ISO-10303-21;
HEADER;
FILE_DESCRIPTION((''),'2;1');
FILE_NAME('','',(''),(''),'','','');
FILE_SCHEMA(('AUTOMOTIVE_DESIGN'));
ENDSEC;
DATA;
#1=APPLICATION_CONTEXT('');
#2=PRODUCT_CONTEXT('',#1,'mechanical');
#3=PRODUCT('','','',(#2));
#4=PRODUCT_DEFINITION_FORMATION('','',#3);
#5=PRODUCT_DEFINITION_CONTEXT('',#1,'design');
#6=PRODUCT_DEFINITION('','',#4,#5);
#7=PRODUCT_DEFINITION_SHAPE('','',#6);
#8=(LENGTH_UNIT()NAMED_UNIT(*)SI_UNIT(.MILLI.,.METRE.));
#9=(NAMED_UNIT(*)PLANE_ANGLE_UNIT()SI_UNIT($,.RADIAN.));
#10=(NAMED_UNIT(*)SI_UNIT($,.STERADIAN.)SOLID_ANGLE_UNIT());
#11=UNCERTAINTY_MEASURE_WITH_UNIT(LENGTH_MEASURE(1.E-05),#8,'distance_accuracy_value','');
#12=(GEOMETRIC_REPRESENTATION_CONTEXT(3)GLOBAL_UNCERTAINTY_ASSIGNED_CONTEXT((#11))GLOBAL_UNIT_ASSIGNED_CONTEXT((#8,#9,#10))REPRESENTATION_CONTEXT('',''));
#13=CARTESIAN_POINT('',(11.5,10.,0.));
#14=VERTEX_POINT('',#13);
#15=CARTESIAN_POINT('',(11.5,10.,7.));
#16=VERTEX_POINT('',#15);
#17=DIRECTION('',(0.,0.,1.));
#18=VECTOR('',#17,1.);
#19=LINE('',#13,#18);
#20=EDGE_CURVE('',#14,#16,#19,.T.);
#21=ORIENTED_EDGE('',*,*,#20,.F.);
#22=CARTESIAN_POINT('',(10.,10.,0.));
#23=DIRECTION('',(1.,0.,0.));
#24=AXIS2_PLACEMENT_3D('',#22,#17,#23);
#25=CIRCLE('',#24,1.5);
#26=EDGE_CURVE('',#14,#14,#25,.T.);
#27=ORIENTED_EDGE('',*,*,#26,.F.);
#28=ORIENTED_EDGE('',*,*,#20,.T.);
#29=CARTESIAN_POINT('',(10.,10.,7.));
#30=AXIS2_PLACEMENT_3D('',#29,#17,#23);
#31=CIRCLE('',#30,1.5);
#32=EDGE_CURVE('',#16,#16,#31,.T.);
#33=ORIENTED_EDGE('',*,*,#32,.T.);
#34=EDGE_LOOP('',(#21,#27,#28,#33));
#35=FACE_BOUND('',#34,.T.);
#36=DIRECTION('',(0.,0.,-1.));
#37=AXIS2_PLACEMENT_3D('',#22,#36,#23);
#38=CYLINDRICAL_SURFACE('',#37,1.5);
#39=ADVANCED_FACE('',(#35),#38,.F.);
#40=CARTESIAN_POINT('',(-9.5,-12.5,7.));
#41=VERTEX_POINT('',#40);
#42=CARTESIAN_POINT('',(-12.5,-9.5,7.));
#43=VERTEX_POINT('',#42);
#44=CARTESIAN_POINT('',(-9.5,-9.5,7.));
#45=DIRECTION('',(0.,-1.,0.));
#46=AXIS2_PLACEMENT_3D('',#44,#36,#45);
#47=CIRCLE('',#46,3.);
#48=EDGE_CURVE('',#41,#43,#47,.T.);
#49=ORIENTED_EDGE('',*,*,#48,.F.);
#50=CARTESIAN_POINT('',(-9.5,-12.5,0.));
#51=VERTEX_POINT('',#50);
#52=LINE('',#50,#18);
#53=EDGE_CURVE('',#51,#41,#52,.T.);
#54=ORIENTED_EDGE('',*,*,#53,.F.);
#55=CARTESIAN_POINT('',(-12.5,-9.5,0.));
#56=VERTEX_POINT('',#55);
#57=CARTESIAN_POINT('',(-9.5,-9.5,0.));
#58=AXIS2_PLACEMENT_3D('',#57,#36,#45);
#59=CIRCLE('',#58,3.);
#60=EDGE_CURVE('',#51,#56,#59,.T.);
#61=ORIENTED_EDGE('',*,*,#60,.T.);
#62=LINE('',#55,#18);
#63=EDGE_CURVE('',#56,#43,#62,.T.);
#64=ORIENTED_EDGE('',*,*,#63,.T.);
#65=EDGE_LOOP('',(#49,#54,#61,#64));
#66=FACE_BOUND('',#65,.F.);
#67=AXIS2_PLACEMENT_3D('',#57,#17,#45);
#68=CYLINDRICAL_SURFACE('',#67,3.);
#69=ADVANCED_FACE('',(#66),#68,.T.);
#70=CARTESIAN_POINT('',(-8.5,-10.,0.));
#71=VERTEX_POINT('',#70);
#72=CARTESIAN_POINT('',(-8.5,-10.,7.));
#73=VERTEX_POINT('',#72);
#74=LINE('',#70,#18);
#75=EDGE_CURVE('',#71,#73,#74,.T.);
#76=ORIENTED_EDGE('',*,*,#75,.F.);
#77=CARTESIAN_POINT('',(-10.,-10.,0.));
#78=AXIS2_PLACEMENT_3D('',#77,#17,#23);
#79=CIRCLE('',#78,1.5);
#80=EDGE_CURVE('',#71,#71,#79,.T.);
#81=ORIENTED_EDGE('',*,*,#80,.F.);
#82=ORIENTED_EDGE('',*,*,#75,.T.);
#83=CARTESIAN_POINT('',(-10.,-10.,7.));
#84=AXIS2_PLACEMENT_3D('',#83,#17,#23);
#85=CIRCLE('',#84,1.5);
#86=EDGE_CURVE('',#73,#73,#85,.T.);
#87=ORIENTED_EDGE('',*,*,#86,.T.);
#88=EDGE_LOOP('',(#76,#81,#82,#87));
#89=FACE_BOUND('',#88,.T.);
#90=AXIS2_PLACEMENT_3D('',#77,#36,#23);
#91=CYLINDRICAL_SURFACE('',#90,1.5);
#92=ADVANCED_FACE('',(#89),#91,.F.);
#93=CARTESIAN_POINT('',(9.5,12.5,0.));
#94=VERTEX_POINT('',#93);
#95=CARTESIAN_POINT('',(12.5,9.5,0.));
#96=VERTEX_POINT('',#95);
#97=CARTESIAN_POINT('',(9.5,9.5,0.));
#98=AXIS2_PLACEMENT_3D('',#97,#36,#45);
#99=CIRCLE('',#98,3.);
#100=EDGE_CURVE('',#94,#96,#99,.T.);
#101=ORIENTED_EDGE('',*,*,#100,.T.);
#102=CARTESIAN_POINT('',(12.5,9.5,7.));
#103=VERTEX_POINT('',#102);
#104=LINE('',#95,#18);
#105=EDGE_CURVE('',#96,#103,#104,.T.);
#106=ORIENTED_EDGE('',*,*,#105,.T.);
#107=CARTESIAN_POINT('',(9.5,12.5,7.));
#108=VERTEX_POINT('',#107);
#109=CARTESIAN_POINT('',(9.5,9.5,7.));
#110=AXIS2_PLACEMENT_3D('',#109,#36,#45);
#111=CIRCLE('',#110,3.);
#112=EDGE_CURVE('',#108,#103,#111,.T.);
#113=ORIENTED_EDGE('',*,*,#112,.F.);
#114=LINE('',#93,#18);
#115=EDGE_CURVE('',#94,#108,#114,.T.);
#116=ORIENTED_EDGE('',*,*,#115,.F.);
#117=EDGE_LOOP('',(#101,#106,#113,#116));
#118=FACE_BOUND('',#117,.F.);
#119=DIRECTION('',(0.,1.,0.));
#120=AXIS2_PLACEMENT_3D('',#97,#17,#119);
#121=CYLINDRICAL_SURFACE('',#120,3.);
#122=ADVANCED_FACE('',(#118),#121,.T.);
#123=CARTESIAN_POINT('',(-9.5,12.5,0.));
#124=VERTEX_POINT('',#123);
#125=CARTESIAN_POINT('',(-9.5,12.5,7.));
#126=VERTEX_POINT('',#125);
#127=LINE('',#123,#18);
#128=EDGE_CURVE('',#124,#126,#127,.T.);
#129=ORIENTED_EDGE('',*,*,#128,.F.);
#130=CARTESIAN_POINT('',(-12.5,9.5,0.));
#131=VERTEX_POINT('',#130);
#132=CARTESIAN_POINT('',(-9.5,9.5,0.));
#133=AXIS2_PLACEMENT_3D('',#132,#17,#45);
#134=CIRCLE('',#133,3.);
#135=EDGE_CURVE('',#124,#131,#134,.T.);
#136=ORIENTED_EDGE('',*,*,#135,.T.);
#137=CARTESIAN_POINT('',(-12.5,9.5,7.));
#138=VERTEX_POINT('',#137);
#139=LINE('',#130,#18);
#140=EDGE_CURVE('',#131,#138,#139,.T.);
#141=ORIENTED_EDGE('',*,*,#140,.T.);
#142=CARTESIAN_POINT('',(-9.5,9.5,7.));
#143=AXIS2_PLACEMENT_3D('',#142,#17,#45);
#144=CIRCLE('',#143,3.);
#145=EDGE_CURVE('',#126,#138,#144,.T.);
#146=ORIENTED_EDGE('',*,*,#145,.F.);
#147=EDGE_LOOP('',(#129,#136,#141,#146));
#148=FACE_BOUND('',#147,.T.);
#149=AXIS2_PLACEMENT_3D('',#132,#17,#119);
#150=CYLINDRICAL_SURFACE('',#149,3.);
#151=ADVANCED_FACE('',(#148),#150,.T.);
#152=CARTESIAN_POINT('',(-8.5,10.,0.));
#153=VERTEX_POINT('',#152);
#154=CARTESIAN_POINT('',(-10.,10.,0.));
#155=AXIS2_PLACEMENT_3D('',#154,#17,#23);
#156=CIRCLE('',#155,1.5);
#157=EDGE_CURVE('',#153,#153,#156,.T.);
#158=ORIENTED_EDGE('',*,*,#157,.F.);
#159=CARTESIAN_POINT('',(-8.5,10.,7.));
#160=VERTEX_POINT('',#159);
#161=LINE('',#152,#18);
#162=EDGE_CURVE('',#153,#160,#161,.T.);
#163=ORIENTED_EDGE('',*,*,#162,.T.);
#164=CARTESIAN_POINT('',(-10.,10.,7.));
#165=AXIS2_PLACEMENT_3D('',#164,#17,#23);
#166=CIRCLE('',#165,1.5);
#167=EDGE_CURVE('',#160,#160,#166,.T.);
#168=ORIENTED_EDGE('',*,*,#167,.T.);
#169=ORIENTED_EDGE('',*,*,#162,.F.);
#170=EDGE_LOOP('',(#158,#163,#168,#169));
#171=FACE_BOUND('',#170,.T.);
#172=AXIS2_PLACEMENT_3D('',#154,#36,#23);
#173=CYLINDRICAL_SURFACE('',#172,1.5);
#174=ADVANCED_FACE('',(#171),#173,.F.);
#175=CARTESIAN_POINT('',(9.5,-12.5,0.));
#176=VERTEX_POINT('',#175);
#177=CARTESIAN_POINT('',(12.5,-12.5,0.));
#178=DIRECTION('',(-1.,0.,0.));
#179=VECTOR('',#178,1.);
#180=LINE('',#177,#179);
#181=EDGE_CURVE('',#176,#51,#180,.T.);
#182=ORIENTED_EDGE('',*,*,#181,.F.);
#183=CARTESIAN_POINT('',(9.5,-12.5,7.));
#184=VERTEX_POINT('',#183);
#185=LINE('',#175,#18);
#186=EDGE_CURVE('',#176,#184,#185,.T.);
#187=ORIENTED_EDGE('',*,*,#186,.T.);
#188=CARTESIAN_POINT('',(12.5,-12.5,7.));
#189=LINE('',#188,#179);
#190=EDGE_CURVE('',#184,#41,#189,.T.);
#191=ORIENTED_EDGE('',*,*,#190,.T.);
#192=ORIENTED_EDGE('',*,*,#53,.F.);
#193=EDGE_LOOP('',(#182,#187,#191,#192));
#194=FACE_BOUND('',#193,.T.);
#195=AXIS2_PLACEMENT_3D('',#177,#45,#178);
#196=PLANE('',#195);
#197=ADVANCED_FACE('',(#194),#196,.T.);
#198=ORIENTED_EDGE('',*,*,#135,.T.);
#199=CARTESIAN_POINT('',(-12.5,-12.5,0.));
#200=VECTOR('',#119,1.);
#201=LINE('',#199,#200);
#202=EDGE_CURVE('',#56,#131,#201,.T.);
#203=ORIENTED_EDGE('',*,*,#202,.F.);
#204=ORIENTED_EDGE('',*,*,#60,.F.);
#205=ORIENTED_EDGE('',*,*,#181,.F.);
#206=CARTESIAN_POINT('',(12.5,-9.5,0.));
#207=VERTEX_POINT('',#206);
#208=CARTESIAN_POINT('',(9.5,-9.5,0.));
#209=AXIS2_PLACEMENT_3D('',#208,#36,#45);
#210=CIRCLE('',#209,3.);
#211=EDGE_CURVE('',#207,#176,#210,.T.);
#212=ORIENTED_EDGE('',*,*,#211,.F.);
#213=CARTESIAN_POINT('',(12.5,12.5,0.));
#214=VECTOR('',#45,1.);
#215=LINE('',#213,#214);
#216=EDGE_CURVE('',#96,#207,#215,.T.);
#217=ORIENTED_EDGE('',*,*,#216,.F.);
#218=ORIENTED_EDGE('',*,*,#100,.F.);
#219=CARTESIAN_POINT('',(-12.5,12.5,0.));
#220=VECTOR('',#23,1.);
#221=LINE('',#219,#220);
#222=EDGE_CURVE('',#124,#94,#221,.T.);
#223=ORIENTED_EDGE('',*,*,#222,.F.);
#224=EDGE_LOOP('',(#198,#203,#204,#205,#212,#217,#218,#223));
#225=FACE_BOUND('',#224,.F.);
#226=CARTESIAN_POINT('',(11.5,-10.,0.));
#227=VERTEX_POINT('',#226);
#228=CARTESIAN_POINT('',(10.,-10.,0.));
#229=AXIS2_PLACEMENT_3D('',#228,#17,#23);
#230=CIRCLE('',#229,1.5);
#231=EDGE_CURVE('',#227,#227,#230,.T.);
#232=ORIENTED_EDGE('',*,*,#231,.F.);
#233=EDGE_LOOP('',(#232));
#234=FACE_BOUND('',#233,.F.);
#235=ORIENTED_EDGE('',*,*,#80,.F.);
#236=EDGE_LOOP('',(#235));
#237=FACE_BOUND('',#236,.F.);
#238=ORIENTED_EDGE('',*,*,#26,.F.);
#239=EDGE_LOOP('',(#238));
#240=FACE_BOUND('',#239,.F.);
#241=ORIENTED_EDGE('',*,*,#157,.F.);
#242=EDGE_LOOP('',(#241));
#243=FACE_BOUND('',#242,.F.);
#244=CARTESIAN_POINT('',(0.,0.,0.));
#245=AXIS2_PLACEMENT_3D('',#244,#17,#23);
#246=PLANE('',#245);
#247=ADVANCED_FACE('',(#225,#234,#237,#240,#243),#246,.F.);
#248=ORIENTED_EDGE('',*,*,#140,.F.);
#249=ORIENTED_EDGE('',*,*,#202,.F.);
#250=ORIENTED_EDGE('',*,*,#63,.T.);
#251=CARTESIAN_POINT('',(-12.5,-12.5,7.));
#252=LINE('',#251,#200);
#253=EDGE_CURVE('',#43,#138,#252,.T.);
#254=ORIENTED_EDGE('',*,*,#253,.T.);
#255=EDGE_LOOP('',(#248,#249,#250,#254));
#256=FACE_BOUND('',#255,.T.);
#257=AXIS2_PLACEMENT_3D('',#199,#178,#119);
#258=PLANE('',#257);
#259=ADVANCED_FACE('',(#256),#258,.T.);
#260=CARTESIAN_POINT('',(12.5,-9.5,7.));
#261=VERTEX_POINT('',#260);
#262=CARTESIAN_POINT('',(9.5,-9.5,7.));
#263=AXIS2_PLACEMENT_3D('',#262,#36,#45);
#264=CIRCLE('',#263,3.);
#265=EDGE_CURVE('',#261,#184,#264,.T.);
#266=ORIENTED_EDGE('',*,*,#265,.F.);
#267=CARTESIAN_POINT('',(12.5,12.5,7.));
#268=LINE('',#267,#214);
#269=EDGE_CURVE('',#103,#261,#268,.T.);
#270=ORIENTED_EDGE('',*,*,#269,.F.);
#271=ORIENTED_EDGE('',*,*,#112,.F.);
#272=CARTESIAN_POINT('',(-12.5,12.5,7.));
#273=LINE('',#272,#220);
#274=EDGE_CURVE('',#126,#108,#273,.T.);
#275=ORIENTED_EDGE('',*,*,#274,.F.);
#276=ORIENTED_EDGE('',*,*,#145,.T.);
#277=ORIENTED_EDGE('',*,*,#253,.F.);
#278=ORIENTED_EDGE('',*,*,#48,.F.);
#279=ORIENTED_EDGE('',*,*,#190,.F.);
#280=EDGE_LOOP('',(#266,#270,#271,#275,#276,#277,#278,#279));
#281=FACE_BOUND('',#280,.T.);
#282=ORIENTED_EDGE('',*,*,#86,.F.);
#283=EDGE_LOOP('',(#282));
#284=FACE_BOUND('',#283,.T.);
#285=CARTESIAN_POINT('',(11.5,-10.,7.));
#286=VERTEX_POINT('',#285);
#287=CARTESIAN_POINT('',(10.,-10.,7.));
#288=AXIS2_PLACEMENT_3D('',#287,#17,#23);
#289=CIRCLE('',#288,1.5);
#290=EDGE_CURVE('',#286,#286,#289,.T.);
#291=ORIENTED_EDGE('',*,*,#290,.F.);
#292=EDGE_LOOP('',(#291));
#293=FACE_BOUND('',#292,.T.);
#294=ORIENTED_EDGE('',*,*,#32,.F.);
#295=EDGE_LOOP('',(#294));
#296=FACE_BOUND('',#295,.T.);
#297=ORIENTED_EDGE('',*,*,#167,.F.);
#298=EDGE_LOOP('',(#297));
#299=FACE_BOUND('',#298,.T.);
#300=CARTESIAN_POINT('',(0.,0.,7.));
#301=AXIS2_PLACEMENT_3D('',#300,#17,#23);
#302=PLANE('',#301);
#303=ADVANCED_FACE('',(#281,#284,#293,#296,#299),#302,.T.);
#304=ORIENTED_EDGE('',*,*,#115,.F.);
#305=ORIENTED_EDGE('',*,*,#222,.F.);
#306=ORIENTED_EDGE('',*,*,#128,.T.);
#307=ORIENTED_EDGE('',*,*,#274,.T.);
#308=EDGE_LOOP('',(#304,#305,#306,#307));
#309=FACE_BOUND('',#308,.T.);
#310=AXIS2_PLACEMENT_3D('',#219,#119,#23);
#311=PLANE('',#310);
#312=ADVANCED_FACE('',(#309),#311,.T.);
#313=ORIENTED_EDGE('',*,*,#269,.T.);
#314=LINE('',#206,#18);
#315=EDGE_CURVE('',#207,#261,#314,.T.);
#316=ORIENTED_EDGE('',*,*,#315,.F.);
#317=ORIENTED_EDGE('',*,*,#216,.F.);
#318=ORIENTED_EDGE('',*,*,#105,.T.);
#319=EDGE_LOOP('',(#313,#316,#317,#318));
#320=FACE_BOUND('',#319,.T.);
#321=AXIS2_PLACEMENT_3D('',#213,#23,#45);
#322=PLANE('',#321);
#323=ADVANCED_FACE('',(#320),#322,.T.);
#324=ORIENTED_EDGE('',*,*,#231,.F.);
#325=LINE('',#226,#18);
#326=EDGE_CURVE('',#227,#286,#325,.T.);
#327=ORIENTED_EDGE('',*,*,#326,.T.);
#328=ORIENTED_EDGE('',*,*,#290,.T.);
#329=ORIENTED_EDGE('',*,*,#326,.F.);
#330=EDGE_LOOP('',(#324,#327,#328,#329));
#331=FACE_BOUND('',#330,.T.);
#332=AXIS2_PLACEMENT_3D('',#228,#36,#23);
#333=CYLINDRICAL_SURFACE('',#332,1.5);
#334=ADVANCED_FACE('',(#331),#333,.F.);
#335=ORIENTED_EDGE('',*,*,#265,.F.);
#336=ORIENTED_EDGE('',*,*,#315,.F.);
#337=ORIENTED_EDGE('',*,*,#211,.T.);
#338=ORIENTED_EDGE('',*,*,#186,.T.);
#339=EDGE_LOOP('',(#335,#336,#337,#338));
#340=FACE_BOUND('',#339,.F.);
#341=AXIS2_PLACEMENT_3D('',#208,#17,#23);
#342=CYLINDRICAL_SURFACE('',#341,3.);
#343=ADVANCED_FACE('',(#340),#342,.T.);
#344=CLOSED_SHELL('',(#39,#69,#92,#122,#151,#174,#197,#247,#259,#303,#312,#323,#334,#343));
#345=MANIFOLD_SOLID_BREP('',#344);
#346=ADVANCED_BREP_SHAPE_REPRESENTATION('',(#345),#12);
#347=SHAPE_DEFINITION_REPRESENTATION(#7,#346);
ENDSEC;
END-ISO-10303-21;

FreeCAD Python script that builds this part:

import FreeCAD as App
import Part
import Sketcher


def edges_at(feature, points):
    """Names of the edges that pass closest to the given points."""
    edges = feature.Shape.Edges
    near = lambda p: min(range(len(edges)), key=lambda i: edges[i].distToShape(Part.Vertex(*p))[0])
    return sorted({f"Edge{near(p) + 1}" for p in points})


def add_polygon(sketch, points):
    """Adds a closed chain of lines whose ends are joined by coincident constraints."""
    first, n = sketch.GeometryCount, len(points)
    for a, b in zip(points, points[1:] + points[:1]):
        sketch.addGeometry(Part.LineSegment(App.Vector(*a, 0), App.Vector(*b, 0)), False)
    for i in range(n):
        sketch.addConstraint(Sketcher.Constraint("Coincident", first + i, 2, first + (i + 1) % n, 1))

doc = App.newDocument("Part")
body = doc.addObject("PartDesign::Body", "Body")

# Sketch on XY plane
sketch1 = body.newObject("Sketcher::SketchObject", "Sketch")
sketch1.AttachmentSupport = (doc.getObject("XY_Plane"), [""])
sketch1.MapMode = "FlatFace"
add_polygon(sketch1, [(12.5, 12.5), (-12.5, 12.5), (-12.5, -12.5), (12.5, -12.5)])  # lines 0-3
sketch1.addGeometry(Part.Circle(App.Vector(-10, -10, 0), App.Vector(0, 0, 1), 1.5), False)  # 4
sketch1.addGeometry(Part.Circle(App.Vector(10, -10, 0), App.Vector(0, 0, 1), 1.5), False)  # 5
sketch1.addGeometry(Part.Circle(App.Vector(-10, 10, 0), App.Vector(0, 0, 1), 1.5), False)  # 6
sketch1.addGeometry(Part.Circle(App.Vector(10, 10, 0), App.Vector(0, 0, 1), 1.5), False)  # 7
sketch1.addConstraint(Sketcher.Constraint("Horizontal", 0))
sketch1.addConstraint(Sketcher.Constraint("Vertical", 1))
sketch1.addConstraint(Sketcher.Constraint("Horizontal", 2))
sketch1.addConstraint(Sketcher.Constraint("Vertical", 3))
sketch1.addConstraint(Sketcher.Constraint("Equal", 4, 5))
sketch1.addConstraint(Sketcher.Constraint("Equal", 5, 6))
sketch1.addConstraint(Sketcher.Constraint("Equal", 6, 7))
sketch1.addConstraint(Sketcher.Constraint("Symmetric", 5, 3, 6, 3, -1, 1))
sketch1.addConstraint(Sketcher.Constraint("Symmetric", 4, 3, 7, 3, -1, 1))
sketch1.addConstraint(Sketcher.Constraint("Symmetric", 0, 2, 2, 2, -1, 1))
sketch1.addConstraint(Sketcher.Constraint("Symmetric", 4, 3, 5, 3, -2))
sketch1.addConstraint(Sketcher.Constraint("Equal", 2, 1))
sketch1.addConstraint(Sketcher.Constraint("Diameter", 4, 3.0))
sketch1.addConstraint(Sketcher.Constraint("DistanceX", 0, 2, 0, 1, 25.0))
sketch1.addConstraint(Sketcher.Constraint("DistanceX", 4, 3, 5, 3, 20.0))
sketch1.addConstraint(Sketcher.Constraint("DistanceY", 4, 3, 6, 3, 20.0))
pad1 = body.newObject("PartDesign::Pad", "Pad")
pad1.Profile = sketch1
pad1.Length = 7
doc.recompute()

fillet = body.newObject("PartDesign::Fillet", "Fillet")
fillet.Base = (pad1, edges_at(pad1, [
    (-12.5, 12.5, 3.5),
    (12.5, 12.5, 3.5),
    (12.5, -12.5, 3.5),
    (-12.5, -12.5, 3.5),
]))
fillet.Radius = 3

doc.recompute()
